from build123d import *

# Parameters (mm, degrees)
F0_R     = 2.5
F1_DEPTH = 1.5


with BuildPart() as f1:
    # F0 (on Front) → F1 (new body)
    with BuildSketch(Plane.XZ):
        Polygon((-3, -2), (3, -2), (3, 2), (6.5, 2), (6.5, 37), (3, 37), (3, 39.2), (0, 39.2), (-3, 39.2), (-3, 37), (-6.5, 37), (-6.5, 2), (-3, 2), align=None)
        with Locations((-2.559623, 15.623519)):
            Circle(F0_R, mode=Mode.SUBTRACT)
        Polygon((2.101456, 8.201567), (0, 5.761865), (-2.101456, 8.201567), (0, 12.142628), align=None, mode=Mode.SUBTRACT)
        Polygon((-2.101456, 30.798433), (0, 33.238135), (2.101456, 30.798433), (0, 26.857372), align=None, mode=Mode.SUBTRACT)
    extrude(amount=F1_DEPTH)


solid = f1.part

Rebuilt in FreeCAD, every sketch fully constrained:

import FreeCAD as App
import Part
import Sketcher
from FreeCAD import Vector
Q = App.Units.Quantity

doc = App.newDocument("Part")
body = doc.addObject("PartDesign::Body", "Body")

sketch1 = body.newObject("Sketcher::SketchObject", "Sketch")
sketch1.AttachmentSupport = (doc.getObject("XZ_Plane"), [""])
sketch1.MapMode = "FlatFace"
sketch1.addGeometry([
    Part.LineSegment(Vector(-3, -2, 0), Vector(3, -2, 0)),
    Part.LineSegment(Vector(3, -2, 0), Vector(3, 2, 0)),
    Part.LineSegment(Vector(3, 2, 0), Vector(6.5, 2, 0)),
    Part.LineSegment(Vector(6.5, 2, 0), Vector(6.5, 37, 0)),
    Part.LineSegment(Vector(6.5, 37, 0), Vector(3, 37, 0)),
    Part.LineSegment(Vector(3, 37, 0), Vector(3, 39.2, 0)),
    Part.LineSegment(Vector(3, 39.2, 0), Vector(-3, 39.2, 0)),
    Part.LineSegment(Vector(-3, 39.2, 0), Vector(-3, 37, 0)),
    Part.LineSegment(Vector(-3, 37, 0), Vector(-6.5, 37, 0)),
    Part.LineSegment(Vector(-6.5, 37, 0), Vector(-6.5, 2, 0)),
    Part.LineSegment(Vector(-6.5, 2, 0), Vector(-3, 2, 0)),
    Part.LineSegment(Vector(-3, 2, 0), Vector(-3, -2, 0)),
    Part.Circle(Vector(-2.559623, 15.623519, 0), Vector(0, 0, 1), 2.5),
    Part.LineSegment(Vector(0, 12.142628, 0), Vector(2.101456, 8.201567, 0)),
    Part.LineSegment(Vector(2.101456, 8.201567, 0), Vector(0, 5.761865, 0)),
    Part.LineSegment(Vector(0, 5.761865, 0), Vector(-2.101456, 8.201567, 0)),
    Part.LineSegment(Vector(-2.101456, 8.201567, 0), Vector(0, 12.142628, 0)),
    Part.LineSegment(Vector(0, 26.857372, 0), Vector(-2.101456, 30.798433, 0)),
    Part.LineSegment(Vector(-2.101456, 30.798433, 0), Vector(0, 33.238135, 0)),
    Part.LineSegment(Vector(0, 33.238135, 0), Vector(2.101456, 30.798433, 0)),
    Part.LineSegment(Vector(2.101456, 30.798433, 0), Vector(0, 26.857372, 0)),
], False)
sketch1.addConstraint([
    Sketcher.Constraint("Coincident", 0, 2, 1, 1),
    Sketcher.Constraint("Coincident", 1, 2, 2, 1),
    Sketcher.Constraint("Coincident", 2, 2, 3, 1),
    Sketcher.Constraint("Coincident", 3, 2, 4, 1),
    Sketcher.Constraint("Coincident", 4, 2, 5, 1),
    Sketcher.Constraint("Coincident", 5, 2, 6, 1),
    Sketcher.Constraint("Coincident", 6, 2, 7, 1),
    Sketcher.Constraint("Coincident", 7, 2, 8, 1),
    Sketcher.Constraint("Coincident", 8, 2, 9, 1),
    Sketcher.Constraint("Coincident", 9, 2, 10, 1),
    Sketcher.Constraint("Coincident", 10, 2, 11, 1),
    Sketcher.Constraint("Coincident", 11, 2, 0, 1),
    Sketcher.Constraint("Coincident", 13, 2, 14, 1),
    Sketcher.Constraint("Coincident", 14, 2, 15, 1),
    Sketcher.Constraint("Coincident", 15, 2, 16, 1),
    Sketcher.Constraint("Coincident", 16, 2, 13, 1),
    Sketcher.Constraint("Coincident", 17, 2, 18, 1),
    Sketcher.Constraint("Coincident", 18, 2, 19, 1),
    Sketcher.Constraint("Coincident", 19, 2, 20, 1),
    Sketcher.Constraint("Coincident", 20, 2, 17, 1),
    Sketcher.Constraint("Horizontal", 0),
    Sketcher.Constraint("Vertical", 1),
    Sketcher.Constraint("Horizontal", 2),
    Sketcher.Constraint("Vertical", 3),
    Sketcher.Constraint("Horizontal", 4),
    Sketcher.Constraint("Vertical", 5),
    Sketcher.Constraint("Horizontal", 6),
    Sketcher.Constraint("Vertical", 7),
    Sketcher.Constraint("Horizontal", 8),
    Sketcher.Constraint("Vertical", 9),
    Sketcher.Constraint("Horizontal", 10),
    Sketcher.Constraint("Vertical", 11),
    Sketcher.Constraint("Symmetric", 0, 2, 10, 2, -1, 1),
    Sketcher.Constraint("Symmetric", 4, 2, 7, 2, -2),
    Sketcher.Constraint("Symmetric", 2, 2, 9, 2, -2),
    Sketcher.Constraint("Symmetric", 13, 2, 15, 2, -2),
    Sketcher.Constraint("Symmetric", 17, 2, 19, 2, -2),
    Sketcher.Constraint("PointOnObject", 14, 2, -2),
    Sketcher.Constraint("PointOnObject", 16, 2, -2),
    Sketcher.Constraint("PointOnObject", 18, 2, -2),
    Sketcher.Constraint("PointOnObject", 20, 2, -2),
    Sketcher.Constraint("Parallel", 13, 17),
    Sketcher.Constraint("Parallel", 14, 18),
    Sketcher.Constraint("Vertical", 1, 2, 4, 2),
    Sketcher.Constraint("Vertical", 15, 2, 17, 2),
    Sketcher.Constraint("Diameter", 12, Q("5 mm")),
    Sketcher.Constraint("DistanceX", 0, 1, 0, 2, Q("6 mm")),
    Sketcher.Constraint("DistanceY", 1, 1, 1, 2, Q("4 mm")),
    Sketcher.Constraint("DistanceY", 3, 1, 3, 2, Q("35 mm")),
    Sketcher.Constraint("DistanceX", 2, 1, 2, 2, Q("3.5 mm")),
    Sketcher.Constraint("DistanceY", 5, 1, 5, 2, Q("2.2 mm")),
    Sketcher.Constraint("Distance", 14, Q("3.219979 mm")),
    Sketcher.Constraint("DistanceY", -1, 1, 12, 3, Q("15.623519 mm")),
    Sketcher.Constraint("DistanceX", 12, 3, 13, 2, Q("4.661079 mm")),
    Sketcher.Constraint("DistanceY", 13, 2, 12, 3, Q("7.421952 mm")),
    Sketcher.Constraint("DistanceY", 16, 2, 12, 3, Q("3.480891 mm")),
    Sketcher.Constraint("Distance", 13, Q("4.466327 mm")),
    Sketcher.Constraint("DistanceY", -1, 1, 17, 2, Q("30.798433 mm")),
])
pad1 = body.newObject("PartDesign::Pad", "Pad")
pad1.Profile = sketch1
pad1.Length = 1.5

doc.recompute()
